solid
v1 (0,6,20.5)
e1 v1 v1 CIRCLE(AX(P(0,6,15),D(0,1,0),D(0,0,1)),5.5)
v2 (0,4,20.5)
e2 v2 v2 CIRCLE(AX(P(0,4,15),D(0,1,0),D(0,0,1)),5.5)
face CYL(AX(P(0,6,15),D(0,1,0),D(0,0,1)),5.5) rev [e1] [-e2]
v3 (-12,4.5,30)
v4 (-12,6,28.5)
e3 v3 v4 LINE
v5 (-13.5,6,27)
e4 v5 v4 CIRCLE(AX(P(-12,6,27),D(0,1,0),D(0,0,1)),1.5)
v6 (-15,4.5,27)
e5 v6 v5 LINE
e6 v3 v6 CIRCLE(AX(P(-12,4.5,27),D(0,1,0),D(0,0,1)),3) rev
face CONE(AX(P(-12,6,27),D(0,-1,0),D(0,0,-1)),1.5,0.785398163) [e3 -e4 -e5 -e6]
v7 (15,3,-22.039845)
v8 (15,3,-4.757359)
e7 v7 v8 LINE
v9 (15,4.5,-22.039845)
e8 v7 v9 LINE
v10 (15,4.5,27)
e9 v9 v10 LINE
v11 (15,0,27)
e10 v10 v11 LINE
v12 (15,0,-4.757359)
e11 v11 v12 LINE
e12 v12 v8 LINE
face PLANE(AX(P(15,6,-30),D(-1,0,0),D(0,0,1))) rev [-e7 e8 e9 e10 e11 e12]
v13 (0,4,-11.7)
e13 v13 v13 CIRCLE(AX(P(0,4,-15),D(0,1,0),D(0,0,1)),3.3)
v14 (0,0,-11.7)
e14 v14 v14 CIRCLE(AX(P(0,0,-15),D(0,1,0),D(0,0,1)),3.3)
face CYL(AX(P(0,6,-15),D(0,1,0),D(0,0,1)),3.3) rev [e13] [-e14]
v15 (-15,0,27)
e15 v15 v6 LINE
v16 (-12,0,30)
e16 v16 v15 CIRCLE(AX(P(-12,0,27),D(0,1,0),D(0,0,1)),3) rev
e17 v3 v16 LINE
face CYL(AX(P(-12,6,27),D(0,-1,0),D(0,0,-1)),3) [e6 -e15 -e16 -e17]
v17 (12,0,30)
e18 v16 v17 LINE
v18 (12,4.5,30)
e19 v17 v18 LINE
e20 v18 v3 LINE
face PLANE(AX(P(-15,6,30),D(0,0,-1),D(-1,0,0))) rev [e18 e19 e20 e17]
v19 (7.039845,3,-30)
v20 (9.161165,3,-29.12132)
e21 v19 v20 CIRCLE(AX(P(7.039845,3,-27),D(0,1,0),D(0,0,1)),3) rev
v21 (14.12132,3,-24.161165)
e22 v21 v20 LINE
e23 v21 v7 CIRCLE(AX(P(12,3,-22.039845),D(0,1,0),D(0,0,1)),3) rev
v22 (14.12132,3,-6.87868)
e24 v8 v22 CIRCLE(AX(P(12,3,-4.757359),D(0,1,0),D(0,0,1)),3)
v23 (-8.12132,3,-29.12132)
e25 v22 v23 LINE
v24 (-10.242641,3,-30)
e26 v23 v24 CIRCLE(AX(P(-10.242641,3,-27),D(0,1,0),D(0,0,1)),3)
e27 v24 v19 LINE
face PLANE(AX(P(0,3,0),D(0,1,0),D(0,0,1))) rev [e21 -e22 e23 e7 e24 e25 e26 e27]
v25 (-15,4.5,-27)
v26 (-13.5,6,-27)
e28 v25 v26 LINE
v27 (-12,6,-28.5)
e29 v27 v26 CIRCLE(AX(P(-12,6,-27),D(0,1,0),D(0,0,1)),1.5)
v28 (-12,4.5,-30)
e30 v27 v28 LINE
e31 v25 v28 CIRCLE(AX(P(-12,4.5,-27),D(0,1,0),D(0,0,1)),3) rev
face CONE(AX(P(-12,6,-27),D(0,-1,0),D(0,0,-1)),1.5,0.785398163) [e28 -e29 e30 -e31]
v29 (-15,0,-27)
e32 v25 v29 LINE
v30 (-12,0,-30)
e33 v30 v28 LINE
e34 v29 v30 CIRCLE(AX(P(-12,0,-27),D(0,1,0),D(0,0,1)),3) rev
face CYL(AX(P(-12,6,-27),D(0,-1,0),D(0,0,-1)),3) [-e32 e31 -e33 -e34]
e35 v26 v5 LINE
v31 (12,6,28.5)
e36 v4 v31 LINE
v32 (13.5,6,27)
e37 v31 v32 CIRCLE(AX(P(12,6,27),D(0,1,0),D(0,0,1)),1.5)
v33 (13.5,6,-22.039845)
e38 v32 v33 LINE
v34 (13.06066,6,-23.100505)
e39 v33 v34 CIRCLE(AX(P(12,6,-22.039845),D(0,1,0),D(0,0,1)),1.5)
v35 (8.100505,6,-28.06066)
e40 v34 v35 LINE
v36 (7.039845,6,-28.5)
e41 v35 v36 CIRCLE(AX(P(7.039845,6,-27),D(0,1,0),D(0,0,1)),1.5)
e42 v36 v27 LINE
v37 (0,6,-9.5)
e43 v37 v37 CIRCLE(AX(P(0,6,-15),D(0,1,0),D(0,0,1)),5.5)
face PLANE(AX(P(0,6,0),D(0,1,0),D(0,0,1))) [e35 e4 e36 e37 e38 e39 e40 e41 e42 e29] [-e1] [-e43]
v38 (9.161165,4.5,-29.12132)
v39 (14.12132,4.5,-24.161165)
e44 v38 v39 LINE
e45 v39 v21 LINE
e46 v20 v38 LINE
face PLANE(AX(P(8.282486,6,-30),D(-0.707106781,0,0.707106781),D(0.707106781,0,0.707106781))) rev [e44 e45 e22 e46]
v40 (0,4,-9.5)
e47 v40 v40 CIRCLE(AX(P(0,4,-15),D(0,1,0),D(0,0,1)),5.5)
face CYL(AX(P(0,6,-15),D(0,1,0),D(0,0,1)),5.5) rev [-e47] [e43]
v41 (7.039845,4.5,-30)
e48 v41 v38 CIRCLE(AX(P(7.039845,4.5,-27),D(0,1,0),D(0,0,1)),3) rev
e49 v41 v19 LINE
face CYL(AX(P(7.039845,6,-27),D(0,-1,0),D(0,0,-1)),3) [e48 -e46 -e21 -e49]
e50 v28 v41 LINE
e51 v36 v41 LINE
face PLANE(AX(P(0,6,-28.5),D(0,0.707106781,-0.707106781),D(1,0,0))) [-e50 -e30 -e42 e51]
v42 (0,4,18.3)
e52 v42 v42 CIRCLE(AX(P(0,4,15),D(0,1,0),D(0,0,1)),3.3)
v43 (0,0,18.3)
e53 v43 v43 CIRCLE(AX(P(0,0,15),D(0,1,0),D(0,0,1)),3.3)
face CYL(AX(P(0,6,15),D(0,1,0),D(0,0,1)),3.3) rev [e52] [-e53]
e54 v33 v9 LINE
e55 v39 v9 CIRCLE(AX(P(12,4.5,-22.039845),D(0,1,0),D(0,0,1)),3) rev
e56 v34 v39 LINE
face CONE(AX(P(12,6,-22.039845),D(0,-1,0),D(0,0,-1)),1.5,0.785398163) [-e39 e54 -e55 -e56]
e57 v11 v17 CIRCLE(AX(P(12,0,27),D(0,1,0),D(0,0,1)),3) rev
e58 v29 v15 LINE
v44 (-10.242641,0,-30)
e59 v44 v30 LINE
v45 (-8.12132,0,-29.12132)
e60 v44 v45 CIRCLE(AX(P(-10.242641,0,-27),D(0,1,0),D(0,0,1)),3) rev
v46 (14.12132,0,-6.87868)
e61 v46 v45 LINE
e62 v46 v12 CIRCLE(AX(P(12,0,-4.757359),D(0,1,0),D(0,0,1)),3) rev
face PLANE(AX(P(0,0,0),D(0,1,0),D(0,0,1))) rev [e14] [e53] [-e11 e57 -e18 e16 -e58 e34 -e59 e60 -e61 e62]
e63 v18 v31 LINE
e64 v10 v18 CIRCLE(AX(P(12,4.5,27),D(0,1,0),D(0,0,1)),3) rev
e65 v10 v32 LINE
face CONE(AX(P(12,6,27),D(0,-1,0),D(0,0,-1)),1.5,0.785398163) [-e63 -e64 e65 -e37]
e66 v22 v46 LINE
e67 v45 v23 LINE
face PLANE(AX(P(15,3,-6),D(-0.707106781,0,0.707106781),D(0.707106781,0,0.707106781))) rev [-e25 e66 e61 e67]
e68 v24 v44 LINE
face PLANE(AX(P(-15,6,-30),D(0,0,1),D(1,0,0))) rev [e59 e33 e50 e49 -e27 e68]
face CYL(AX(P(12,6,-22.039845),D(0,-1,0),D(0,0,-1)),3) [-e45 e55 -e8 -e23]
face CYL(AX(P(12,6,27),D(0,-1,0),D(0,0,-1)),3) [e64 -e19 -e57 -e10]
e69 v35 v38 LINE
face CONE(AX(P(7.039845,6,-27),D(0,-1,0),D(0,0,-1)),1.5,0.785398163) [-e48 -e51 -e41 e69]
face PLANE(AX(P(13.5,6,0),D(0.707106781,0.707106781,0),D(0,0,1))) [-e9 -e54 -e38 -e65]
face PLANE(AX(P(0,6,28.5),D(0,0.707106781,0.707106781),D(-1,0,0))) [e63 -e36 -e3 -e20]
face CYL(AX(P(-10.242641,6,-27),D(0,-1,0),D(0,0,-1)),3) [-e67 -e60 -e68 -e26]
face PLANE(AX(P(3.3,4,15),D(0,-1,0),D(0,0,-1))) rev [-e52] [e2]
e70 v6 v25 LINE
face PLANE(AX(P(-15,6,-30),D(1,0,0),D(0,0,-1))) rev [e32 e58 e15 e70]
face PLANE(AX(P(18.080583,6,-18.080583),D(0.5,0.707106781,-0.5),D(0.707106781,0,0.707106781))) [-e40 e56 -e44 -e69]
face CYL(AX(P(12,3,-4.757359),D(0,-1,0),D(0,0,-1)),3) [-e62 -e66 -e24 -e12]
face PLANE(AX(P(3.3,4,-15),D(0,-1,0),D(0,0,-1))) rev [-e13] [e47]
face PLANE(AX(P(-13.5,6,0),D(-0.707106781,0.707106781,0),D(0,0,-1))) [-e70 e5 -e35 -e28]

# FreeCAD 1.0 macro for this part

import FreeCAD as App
import Part
import Sketcher

V = App.Vector


def edges_at(feature, points):
    """Names of the edges that pass closest to the given points."""
    edges = feature.Shape.Edges
    near = lambda p: min(range(len(edges)), key=lambda i: edges[i].distToShape(Part.Vertex(*p))[0])
    return sorted({f"Edge{near(p) + 1}" for p in points})

doc = App.newDocument("Part")
body = doc.addObject("PartDesign::Body", "Body")

sketch1 = body.newObject("Sketcher::SketchObject", "Sketch")
sketch1.AttachmentSupport = (doc.getObject("XZ_Plane"), [""])
sketch1.MapMode = "FlatFace"
sketch1.addGeometry([
    Part.LineSegment(V(-15, -30, 0), V(-15, 30, 0)),
    Part.LineSegment(V(-15, 30, 0), V(15, 30, 0)),
    Part.LineSegment(V(15, 30, 0), V(15, -30, 0)),
    Part.LineSegment(V(15, -30, 0), V(-15, -30, 0)),
], False)
sketch1.addConstraint([
    Sketcher.Constraint("Coincident", 0, 2, 1, 1),
    Sketcher.Constraint("Coincident", 1, 2, 2, 1),
    Sketcher.Constraint("Coincident", 2, 2, 3, 1),
    Sketcher.Constraint("Coincident", 3, 2, 0, 1),
    Sketcher.Constraint("Vertical", 0),
    Sketcher.Constraint("Horizontal", 1),
    Sketcher.Constraint("Vertical", 2),
    Sketcher.Constraint("Horizontal", 3),
    Sketcher.Constraint("Symmetric", 0, 2, 2, 2, -1, 1),
    Sketcher.Constraint("DistanceX", 1, 1, 1, 2, 30.0),
    Sketcher.Constraint("DistanceY", 0, 1, 0, 2, 60.0),
])
pad1 = body.newObject("PartDesign::Pad", "Pad")
pad1.Profile = sketch1
pad1.Length = 6
pad1.Reversed = True

sketch2 = body.newObject("Sketcher::SketchObject", "Sketch001")
sketch2.AttachmentSupport = (doc.getObject("XZ_Plane"), [""])
sketch2.MapMode = "FlatFace"
sketch2.addGeometry([
    Part.LineSegment(V(15, -6, 0), V(-9, -30, 0)),
    Part.LineSegment(V(-9, -30, 0), V(15, -30, 0)),
    Part.LineSegment(V(15, -30, 0), V(15, -6, 0)),
], False)
sketch2.addConstraint([
    Sketcher.Constraint("Coincident", 0, 2, 1, 1),
    Sketcher.Constraint("Coincident", 1, 2, 2, 1),
    Sketcher.Constraint("Coincident", 2, 2, 0, 1),
    Sketcher.Constraint("Horizontal", 1),
    Sketcher.Constraint("Vertical", 2),
    Sketcher.Constraint("Equal", 1, 2),
    Sketcher.Constraint("DistanceX", 1, 1, 1, 2, 24.0),
    Sketcher.Constraint("DistanceX", 0, 2, -1, 1, 9.0),
    Sketcher.Constraint("DistanceY", 0, 2, -1, 1, 30.0),
])
pocket1 = body.newObject("PartDesign::Pocket", "Pocket")
pocket1.Profile = sketch2
pocket1.Length = 3

sketch3 = body.newObject("Sketcher::SketchObject", "Sketch002")
sketch3.AttachmentSupport = (doc.getObject("XZ_Plane"), [""])
sketch3.MapMode = "FlatFace"
sketch3.AttachmentOffset = App.Placement(V(0, 0, -3), App.Rotation())
sketch3.addGeometry([
    Part.LineSegment(V(15, -30, 0), V(15, -23, 0)),
    Part.LineSegment(V(15, -23, 0), V(8, -30, 0)),
    Part.LineSegment(V(8, -30, 0), V(15, -30, 0)),
], False)
sketch3.addConstraint([
    Sketcher.Constraint("Coincident", 0, 2, 1, 1),
    Sketcher.Constraint("Coincident", 1, 2, 2, 1),
    Sketcher.Constraint("Coincident", 2, 2, 0, 1),
    Sketcher.Constraint("Vertical", 0),
    Sketcher.Constraint("Horizontal", 2),
    Sketcher.Constraint("Equal", 2, 0),
    Sketcher.Constraint("DistanceX", -1, 1, 0, 2, 15.0),
    Sketcher.Constraint("DistanceY", 1, 2, -1, 1, 30.0),
    Sketcher.Constraint("Distance", 1, 9.5),
])
pocket2 = body.newObject("PartDesign::Pocket", "Pocket001")
pocket2.Profile = sketch3
pocket2.Type = "ThroughAll"
doc.recompute()

fillet = body.newObject("PartDesign::Fillet", "Fillet")
fillet.Base = (pocket2, edges_at(pocket2, [
    (15, 1.5, -6),
    (-9, 1.5, -30),
    (8.282, 4.5, -30),
    (15, 4.5, -23.282),
    (15, 3, 30),
    (-15, 3, 30),
    (-15, 3, -30),
]))
fillet.Radius = 3
doc.recompute()

chamfer = body.newObject("PartDesign::Chamfer", "Chamfer")
chamfer.Base = (fillet, edges_at(fillet, [
    (15, 6, 2.48),
    (-2.48, 6, -30),
    (0, 6, 30),
    (-15, 6, 0),
    (11.641, 6, -26.641),
    (14.121, 6, 29.121),
    (14.772, 6, -23.188),
    (8.188, 6, -29.772),
    (-14.121, 6, -29.121),
    (-14.121, 6, 29.121),
]))
chamfer.Size = 1.5

sketch4 = body.newObject("Sketcher::SketchObject", "Sketch003")
sketch4.AttachmentSupport = (doc.getObject("XZ_Plane"), [""])
sketch4.MapMode = "FlatFace"
sketch4.AttachmentOffset = App.Placement(V(0, 0, -6), App.Rotation())
sketch4.addGeometry([
    Part.Circle(V(0, 15, 0), V(0, 0, 1), 3.3),
    Part.Circle(V(0, -15, 0), V(0, 0, 1), 3.3),
], False)
sketch4.addConstraint([
    Sketcher.Constraint("Equal", 0, 1),
    Sketcher.Constraint("Symmetric", 0, 3, 1, 3, -1, 1),
    Sketcher.Constraint("PointOnObject", 0, 3, -2),
    Sketcher.Constraint("Diameter", 0, 6.6),
    Sketcher.Constraint("DistanceY", -1, 1, 0, 3, 15.0),
])
doc.recompute()
hole = body.newObject("PartDesign::Hole", "Hole")
hole.Profile = sketch4
hole.ThreadType = "None"
hole.Diameter = 6.6
hole.DepthType = "ThroughAll"
hole.HoleCutType = "Counterbore"
hole.HoleCutDiameter = 11
hole.HoleCutDepth = 2
hole.Reversed = True

doc.recompute()
